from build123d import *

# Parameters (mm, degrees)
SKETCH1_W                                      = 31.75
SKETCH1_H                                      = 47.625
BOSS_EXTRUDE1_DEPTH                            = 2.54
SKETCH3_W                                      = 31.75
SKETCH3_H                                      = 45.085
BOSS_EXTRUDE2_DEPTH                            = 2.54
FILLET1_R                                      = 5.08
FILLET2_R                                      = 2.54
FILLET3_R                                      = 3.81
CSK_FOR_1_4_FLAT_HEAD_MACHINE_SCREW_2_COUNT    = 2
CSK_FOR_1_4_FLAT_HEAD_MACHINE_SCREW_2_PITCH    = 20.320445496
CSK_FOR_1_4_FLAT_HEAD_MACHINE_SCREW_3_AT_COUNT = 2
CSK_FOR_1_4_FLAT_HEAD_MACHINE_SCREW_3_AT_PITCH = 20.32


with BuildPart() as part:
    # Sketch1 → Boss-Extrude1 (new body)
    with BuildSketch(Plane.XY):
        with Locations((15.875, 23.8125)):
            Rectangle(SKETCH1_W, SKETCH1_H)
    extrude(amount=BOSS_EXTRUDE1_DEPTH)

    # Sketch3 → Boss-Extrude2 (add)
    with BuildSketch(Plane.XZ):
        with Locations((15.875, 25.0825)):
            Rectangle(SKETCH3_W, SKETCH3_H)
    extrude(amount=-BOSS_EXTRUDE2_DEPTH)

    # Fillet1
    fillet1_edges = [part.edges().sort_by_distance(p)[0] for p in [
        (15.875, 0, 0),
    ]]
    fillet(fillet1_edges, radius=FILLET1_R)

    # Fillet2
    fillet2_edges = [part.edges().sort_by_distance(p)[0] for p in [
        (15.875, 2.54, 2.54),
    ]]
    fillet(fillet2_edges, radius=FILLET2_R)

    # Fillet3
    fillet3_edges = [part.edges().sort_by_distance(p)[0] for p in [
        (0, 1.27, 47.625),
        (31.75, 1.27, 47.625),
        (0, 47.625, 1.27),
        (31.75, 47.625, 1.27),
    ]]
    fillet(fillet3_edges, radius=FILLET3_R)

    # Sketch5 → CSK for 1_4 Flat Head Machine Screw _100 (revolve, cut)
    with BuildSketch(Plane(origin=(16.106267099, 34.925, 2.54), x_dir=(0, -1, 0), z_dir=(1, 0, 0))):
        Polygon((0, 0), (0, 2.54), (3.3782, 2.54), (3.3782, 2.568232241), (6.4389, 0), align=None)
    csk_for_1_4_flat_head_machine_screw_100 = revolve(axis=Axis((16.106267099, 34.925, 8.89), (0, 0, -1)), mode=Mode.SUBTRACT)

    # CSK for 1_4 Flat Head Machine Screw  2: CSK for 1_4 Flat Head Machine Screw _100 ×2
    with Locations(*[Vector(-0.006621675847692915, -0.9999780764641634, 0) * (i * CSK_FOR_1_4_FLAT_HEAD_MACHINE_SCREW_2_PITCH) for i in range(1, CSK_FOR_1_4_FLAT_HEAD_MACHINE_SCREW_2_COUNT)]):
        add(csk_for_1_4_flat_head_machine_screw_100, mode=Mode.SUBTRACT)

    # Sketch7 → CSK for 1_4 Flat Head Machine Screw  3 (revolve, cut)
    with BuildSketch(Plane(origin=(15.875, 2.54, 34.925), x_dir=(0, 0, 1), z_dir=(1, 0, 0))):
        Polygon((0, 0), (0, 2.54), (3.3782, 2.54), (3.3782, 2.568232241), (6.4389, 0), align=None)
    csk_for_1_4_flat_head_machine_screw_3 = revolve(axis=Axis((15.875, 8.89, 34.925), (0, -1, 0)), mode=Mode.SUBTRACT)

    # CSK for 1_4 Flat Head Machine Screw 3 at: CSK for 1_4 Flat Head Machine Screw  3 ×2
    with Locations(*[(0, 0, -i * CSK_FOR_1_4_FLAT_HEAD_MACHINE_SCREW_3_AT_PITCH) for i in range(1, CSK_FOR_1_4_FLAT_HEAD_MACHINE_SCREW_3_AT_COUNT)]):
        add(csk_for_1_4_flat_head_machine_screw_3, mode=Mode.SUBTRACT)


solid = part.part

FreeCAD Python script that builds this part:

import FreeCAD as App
import Part
import Sketcher

V = App.Vector
Q = App.Units.Quantity


def edges_at(feature, points):
    """Names of the edges that pass closest to the given points."""
    edges = feature.Shape.Edges
    near = lambda p: min(range(len(edges)), key=lambda i: edges[i].distToShape(Part.Vertex(*p))[0])
    return sorted({f"Edge{near(p) + 1}" for p in points})


def add_polygon(sketch, points):
    """Adds a closed chain of lines whose ends are joined by coincident constraints."""
    first, n = sketch.GeometryCount, len(points)
    for a, b in zip(points, points[1:] + points[:1]):
        sketch.addGeometry(Part.LineSegment(App.Vector(*a, 0), App.Vector(*b, 0)), False)
    for i in range(n):
        sketch.addConstraint(Sketcher.Constraint("Coincident", first + i, 2, first + (i + 1) % n, 1))

doc = App.newDocument("Part")
body = doc.addObject("PartDesign::Body", "Body")

# Sketch on XY plane
sketch1 = body.newObject("Sketcher::SketchObject", "Sketch")
sketch1.AttachmentSupport = (doc.getObject("XY_Plane"), [""])
sketch1.MapMode = "FlatFace"
add_polygon(sketch1, [(0, 48), (0, 0), (32, 0), (32, 48)])  # lines 0-3
sketch1.addConstraint([
    Sketcher.Constraint("Vertical", 0),
    Sketcher.Constraint("Horizontal", 1),
    Sketcher.Constraint("Vertical", 2),
    Sketcher.Constraint("Horizontal", 3),
    Sketcher.Constraint("Coincident", 0, 2, -1, 1),
    Sketcher.Constraint("DistanceX", 1, 1, 1, 2, Q("1.25 in")),
    Sketcher.Constraint("DistanceY", 0, 2, 0, 1, Q("1.875 in")),
])
pad1 = body.newObject("PartDesign::Pad", "Pad")
pad1.Profile = sketch1
pad1.Length = Q("0.1 in")

# Sketch on XZ plane
sketch2 = body.newObject("Sketcher::SketchObject", "Sketch001")
sketch2.AttachmentSupport = (doc.getObject("XZ_Plane"), [""])
sketch2.MapMode = "FlatFace"
add_polygon(sketch2, [(0, 48), (0, 3), (32, 3), (32, 48)])  # lines 0-3
sketch2.addConstraint([
    Sketcher.Constraint("Vertical", 0),
    Sketcher.Constraint("Horizontal", 1),
    Sketcher.Constraint("Vertical", 2),
    Sketcher.Constraint("Horizontal", 3),
    Sketcher.Constraint("PointOnObject", 0, 2, -2),
    Sketcher.Constraint("DistanceX", 1, 1, 1, 2, Q("1.25 in")),
    Sketcher.Constraint("DistanceY", -1, 1, 0, 2, Q("0.1 in")),
    Sketcher.Constraint("DistanceY", 0, 2, 0, 1, Q("1.775 in")),
])
pad2 = body.newObject("PartDesign::Pad", "Pad001")
pad2.Profile = sketch2
pad2.Length = Q("0.1 in")
pad2.Reversed = True
doc.recompute()

fillet = body.newObject("PartDesign::Fillet", "Fillet")
fillet.Base = (pad2, edges_at(pad2, [(15.875, 0, 0)]))
fillet.Radius = Q("0.2 in")
doc.recompute()

fillet2 = body.newObject("PartDesign::Fillet", "Fillet001")
fillet2.Base = (fillet, edges_at(fillet, [(15.875, 2.54, 2.54)]))
fillet2.Radius = Q("0.1 in")
doc.recompute()

fillet3 = body.newObject("PartDesign::Fillet", "Fillet002")
fillet3.Base = (fillet2, edges_at(fillet2, [
    (0, 1.27, 47.625),
    (31.75, 1.27, 47.625),
    (0, 47.625, 1.27),
    (31.75, 47.625, 1.27),
]))
fillet3.Radius = Q("0.15 in")

# Sketch on YZ plane
sketch3 = body.newObject("Sketcher::SketchObject", "Sketch002")
sketch3.AttachmentSupport = (doc.getObject("YZ_Plane"), [""])
sketch3.MapMode = "FlatFace"
sketch3.AttachmentOffset = App.Placement(V(0, 0, 16.106267), App.Rotation())
add_polygon(sketch3, [(34.925, 0), (34.925, 2.54), (28.486, 2.54), (31.547, -0.028), (31.547, 0)])  # lines 0-4
sketch3.addGeometry(Part.LineSegment(V(34.925, 2.54, 0), V(34.925, -0.028, 0)), True)  # axis
sketch3.addConstraint([
    Sketcher.Constraint("Vertical", 0),
    Sketcher.Constraint("Horizontal", 1),
    Sketcher.Constraint("Vertical", 3),
    Sketcher.Constraint("Horizontal", 4),
    Sketcher.Constraint("Vertical", 5),
    Sketcher.Constraint("Coincident", 5, 1, 0, 2),
    Sketcher.Constraint("PointOnObject", 3, 2, -1),
    Sketcher.Constraint("Horizontal", 2, 2, 5, 2),
    Sketcher.Constraint("DistanceY", 0, 1, 0, 2, Q("0.1 in")),
    Sketcher.Constraint("Angle", 2, Q("-40 deg")),
    Sketcher.Constraint("DistanceX", 4, 1, 4, 2, Q("0.133 in")),
    Sketcher.Constraint("DistanceX", 1, 2, 1, 1, Q("0.2535 in")),
    Sketcher.Constraint("DistanceX", -1, 1, 0, 2, Q("1.375 in")),
])
groove = body.newObject("PartDesign::Groove", "Groove")
groove.Profile = sketch3
groove.ReferenceAxis = (sketch3, ["Axis0"])
groove.Angle = 360
doc.recompute()

datumline = body.newObject("PartDesign::Line", "DatumLine")
datumline.Placement = App.Placement(V(0, 0, 0), App.Rotation(V(0, 0, 1), V(-0.006621676, -0.999978076, 0)))
linearpattern = body.newObject("PartDesign::LinearPattern", "LinearPattern")
linearpattern.Originals = [groove]
linearpattern.Direction = (datumline, [""])
linearpattern.Mode = "offset"
linearpattern.Offset = 20.320445
linearpattern.Occurrences = 2
body.Tip = linearpattern

# Sketch on YZ plane
sketch4 = body.newObject("Sketcher::SketchObject", "Sketch003")
sketch4.AttachmentSupport = (doc.getObject("YZ_Plane"), [""])
sketch4.MapMode = "FlatFace"
sketch4.AttachmentOffset = App.Placement(V(0, 0, 0.625 * 25.4), App.Rotation())
add_polygon(sketch4, [(0, 34.925), (2.54, 34.925), (2.54, 41.364), (-0.028, 38.303), (0, 38.303)])  # lines 0-4
sketch4.addGeometry(Part.LineSegment(V(2.54, 34.925, 0), V(-0.028, 34.925, 0)), True)  # axis
sketch4.addConstraint([
    Sketcher.Constraint("Horizontal", 0),
    Sketcher.Constraint("Vertical", 1),
    Sketcher.Constraint("Horizontal", 3),
    Sketcher.Constraint("Vertical", 4),
    Sketcher.Constraint("Horizontal", 5),
    Sketcher.Constraint("Coincident", 5, 1, 0, 2),
    Sketcher.Constraint("PointOnObject", 3, 2, -2),
    Sketcher.Constraint("Vertical", 2, 2, 5, 2),
    Sketcher.Constraint("DistanceX", 0, 1, 0, 2, Q("0.1 in")),
    Sketcher.Constraint("Angle", 2, Q("-130 deg")),
    Sketcher.Constraint("DistanceY", 4, 2, 4, 1, Q("0.133 in")),
    Sketcher.Constraint("DistanceY", 1, 1, 1, 2, Q("0.2535 in")),
    Sketcher.Constraint("DistanceY", -1, 1, 0, 2, Q("1.375 in")),
])
groove2 = body.newObject("PartDesign::Groove", "Groove001")
groove2.Profile = sketch4
groove2.ReferenceAxis = (sketch4, ["Axis0"])
groove2.Angle = 360
doc.recompute()

linearpattern2 = body.newObject("PartDesign::LinearPattern", "LinearPattern001")
linearpattern2.Originals = [groove2]
linearpattern2.Direction = (doc.getObject("Z_Axis"), [""])
linearpattern2.Mode = "offset"
linearpattern2.Offset = Q("0.8 in")
linearpattern2.Occurrences = 2
linearpattern2.Reversed = True
body.Tip = linearpattern2

doc.recompute()
